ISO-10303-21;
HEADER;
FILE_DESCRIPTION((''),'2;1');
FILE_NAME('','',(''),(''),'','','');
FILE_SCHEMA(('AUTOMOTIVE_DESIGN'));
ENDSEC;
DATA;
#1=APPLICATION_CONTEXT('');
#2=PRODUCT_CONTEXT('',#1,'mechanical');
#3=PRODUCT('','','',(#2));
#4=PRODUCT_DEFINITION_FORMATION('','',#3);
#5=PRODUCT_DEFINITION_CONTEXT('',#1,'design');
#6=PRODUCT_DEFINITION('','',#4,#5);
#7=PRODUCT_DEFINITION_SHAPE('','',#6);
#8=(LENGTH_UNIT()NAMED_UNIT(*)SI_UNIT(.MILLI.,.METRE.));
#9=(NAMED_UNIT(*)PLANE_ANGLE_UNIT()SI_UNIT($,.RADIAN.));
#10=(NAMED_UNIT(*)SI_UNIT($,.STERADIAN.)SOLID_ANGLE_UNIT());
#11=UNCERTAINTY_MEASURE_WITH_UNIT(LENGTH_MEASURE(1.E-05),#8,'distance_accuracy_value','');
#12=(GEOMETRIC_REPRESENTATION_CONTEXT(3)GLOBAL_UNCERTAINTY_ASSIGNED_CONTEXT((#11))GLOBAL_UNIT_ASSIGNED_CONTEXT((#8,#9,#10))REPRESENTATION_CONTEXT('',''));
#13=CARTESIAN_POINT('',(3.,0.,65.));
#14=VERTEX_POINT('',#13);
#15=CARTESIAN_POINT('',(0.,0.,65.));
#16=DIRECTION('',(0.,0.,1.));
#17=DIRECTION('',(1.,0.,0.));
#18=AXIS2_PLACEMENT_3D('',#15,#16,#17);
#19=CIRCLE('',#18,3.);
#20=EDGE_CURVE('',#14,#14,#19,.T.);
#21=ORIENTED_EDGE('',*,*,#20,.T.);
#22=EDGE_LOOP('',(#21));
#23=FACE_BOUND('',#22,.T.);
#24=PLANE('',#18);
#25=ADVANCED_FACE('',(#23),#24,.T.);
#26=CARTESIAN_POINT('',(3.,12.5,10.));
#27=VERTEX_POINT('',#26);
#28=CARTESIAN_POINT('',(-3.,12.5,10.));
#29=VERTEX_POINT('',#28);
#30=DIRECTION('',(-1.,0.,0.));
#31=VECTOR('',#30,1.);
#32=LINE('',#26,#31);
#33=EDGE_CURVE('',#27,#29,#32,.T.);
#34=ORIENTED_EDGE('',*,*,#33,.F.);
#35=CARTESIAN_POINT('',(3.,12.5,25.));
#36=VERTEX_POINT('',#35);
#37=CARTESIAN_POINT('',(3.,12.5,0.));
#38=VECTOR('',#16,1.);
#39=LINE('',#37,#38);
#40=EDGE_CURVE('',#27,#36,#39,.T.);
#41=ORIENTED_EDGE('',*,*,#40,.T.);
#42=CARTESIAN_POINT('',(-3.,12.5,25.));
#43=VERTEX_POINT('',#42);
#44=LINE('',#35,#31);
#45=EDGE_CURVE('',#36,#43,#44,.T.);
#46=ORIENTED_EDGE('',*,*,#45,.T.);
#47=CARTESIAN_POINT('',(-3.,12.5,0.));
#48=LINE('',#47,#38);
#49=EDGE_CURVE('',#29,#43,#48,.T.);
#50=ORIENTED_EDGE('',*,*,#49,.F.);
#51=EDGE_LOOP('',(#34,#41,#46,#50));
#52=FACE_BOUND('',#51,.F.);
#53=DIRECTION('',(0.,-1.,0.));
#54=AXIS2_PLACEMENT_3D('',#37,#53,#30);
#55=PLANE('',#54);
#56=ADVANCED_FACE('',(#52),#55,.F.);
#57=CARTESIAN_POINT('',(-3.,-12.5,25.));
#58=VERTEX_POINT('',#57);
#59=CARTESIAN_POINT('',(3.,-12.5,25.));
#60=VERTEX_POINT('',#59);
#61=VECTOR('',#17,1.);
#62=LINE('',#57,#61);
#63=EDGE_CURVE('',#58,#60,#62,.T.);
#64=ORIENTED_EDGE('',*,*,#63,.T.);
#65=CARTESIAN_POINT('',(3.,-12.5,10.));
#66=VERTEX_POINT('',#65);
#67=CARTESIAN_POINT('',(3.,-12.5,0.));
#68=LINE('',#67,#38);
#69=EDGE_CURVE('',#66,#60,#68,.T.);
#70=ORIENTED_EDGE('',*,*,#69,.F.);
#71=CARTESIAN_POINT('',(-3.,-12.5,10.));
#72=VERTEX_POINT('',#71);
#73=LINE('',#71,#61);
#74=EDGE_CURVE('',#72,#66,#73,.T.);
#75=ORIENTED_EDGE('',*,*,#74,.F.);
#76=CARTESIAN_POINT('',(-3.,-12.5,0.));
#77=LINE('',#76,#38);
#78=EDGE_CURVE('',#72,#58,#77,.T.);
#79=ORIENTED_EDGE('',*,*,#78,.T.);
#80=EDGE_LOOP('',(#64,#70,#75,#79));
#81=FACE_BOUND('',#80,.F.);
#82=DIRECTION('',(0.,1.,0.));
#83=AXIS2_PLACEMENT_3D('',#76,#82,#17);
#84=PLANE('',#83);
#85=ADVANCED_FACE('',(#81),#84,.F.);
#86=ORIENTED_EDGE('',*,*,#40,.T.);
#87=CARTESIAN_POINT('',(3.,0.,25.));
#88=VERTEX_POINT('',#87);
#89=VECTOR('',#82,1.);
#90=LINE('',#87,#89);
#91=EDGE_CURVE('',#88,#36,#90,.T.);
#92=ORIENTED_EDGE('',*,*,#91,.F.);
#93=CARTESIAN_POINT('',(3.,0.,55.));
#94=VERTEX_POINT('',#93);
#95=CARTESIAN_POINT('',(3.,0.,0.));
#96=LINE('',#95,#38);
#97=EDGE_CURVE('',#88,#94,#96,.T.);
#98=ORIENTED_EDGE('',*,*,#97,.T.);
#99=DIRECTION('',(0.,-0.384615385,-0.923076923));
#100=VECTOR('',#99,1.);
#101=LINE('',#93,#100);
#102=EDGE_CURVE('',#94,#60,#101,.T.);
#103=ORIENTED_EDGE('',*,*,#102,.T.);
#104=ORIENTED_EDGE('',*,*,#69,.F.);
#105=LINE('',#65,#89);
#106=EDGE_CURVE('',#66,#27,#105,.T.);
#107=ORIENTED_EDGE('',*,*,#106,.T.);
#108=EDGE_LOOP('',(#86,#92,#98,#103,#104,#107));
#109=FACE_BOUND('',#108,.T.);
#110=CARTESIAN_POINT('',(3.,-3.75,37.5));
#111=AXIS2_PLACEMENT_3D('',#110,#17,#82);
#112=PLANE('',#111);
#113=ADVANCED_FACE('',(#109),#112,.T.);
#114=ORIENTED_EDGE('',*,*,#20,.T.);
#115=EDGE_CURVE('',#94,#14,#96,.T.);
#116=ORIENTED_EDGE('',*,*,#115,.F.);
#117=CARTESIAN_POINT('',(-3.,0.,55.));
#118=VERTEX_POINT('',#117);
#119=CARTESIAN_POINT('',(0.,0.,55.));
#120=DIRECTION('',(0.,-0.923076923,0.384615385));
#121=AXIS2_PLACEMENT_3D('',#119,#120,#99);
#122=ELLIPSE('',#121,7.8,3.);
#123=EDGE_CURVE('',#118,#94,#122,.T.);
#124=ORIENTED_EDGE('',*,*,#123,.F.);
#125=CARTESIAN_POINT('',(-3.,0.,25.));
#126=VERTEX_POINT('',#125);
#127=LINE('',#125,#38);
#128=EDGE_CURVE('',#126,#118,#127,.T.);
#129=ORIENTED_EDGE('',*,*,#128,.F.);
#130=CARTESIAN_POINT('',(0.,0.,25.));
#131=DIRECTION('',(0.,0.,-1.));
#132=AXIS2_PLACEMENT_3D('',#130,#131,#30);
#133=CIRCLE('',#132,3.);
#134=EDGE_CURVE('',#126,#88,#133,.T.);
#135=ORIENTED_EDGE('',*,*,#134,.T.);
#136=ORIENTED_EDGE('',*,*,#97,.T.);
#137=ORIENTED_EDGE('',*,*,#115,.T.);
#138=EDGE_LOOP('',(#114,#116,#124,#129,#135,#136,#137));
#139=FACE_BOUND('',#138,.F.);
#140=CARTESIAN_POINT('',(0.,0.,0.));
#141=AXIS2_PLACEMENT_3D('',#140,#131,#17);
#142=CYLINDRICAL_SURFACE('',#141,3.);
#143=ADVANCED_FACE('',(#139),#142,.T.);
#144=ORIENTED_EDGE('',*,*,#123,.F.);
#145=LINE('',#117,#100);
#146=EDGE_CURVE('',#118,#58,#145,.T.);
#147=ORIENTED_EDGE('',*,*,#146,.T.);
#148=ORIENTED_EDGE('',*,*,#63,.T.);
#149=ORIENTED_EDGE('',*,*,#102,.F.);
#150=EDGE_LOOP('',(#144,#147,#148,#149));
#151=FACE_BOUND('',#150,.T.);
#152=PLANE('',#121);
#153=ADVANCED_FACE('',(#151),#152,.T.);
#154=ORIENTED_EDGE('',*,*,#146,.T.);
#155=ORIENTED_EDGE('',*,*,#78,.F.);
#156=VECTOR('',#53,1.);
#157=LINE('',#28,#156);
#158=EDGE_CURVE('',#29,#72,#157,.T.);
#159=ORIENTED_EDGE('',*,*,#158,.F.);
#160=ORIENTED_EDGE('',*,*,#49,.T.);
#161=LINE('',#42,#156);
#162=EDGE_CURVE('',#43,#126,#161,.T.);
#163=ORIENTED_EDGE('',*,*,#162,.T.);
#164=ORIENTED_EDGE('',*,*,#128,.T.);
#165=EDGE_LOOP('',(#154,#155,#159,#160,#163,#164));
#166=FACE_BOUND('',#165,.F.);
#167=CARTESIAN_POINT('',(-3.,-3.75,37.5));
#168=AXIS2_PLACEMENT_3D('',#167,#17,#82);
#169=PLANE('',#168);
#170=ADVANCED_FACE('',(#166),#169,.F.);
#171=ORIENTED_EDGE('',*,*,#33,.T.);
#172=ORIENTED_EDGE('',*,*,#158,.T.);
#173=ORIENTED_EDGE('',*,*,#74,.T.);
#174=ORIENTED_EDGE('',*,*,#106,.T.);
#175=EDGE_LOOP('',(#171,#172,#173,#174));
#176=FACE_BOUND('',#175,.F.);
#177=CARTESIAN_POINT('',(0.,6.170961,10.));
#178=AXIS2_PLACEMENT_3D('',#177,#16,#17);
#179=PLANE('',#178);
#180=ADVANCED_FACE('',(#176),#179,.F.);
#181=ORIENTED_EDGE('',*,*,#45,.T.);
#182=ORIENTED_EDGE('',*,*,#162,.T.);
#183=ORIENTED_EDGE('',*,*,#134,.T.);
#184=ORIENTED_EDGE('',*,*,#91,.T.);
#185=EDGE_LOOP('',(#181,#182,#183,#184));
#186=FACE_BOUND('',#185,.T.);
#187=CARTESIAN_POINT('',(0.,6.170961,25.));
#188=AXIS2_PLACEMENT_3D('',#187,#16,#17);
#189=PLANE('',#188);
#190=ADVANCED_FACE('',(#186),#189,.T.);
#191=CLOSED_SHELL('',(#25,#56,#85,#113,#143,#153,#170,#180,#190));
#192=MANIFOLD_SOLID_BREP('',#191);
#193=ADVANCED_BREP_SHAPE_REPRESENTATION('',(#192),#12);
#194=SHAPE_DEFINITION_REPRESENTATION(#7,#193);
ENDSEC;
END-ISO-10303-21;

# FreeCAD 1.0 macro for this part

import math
import FreeCAD as App
import Part
import Sketcher
from FreeCAD import Vector
Q = App.Units.Quantity


def add_polygon(sketch, points):
    """Adds a closed chain of lines whose ends are joined by coincident constraints."""
    first, n = sketch.GeometryCount, len(points)
    for a, b in zip(points, points[1:] + points[:1]):
        sketch.addGeometry(Part.LineSegment(App.Vector(*a, 0), App.Vector(*b, 0)), False)
    for i in range(n):
        sketch.addConstraint(Sketcher.Constraint("Coincident", first + i, 2, first + (i + 1) % n, 1))

doc = App.newDocument("Part")
body = doc.addObject("PartDesign::Body", "Body")

sketch1 = body.newObject("Sketcher::SketchObject", "Sketch")
sketch1.AttachmentSupport = (doc.getObject("XY_Plane"), [""])
sketch1.MapMode = "FlatFace"
sketch1.addGeometry(Part.ArcOfCircle(Part.Circle(Vector(0, 0, 0), Vector(0, 0, 1), 3), math.radians(0), math.radians(180)), False)
sketch1.addGeometry(Part.LineSegment(Vector(3, 0, 0), Vector(3, 12.5, 0)), False)
sketch1.addGeometry(Part.LineSegment(Vector(3, 12.5, 0), Vector(-3, 12.5, 0)), False)
sketch1.addGeometry(Part.LineSegment(Vector(-3, 12.5, 0), Vector(-3, 0, 0)), False)
sketch1.addConstraint(Sketcher.Constraint("Tangent", 0, 1, 1, 1))
sketch1.addConstraint(Sketcher.Constraint("Coincident", 1, 2, 2, 1))
sketch1.addConstraint(Sketcher.Constraint("Coincident", 2, 2, 3, 1))
sketch1.addConstraint(Sketcher.Constraint("Tangent", 3, 2, 0, 2))
sketch1.addConstraint(Sketcher.Constraint("Vertical", 1))
sketch1.addConstraint(Sketcher.Constraint("Horizontal", 2))
sketch1.addConstraint(Sketcher.Constraint("Vertical", 3))
sketch1.addConstraint(Sketcher.Constraint("Coincident", 0, 3, -1, 1))
sketch1.addConstraint(Sketcher.Constraint("Radius", 0, Q("3 mm")))
sketch1.addConstraint(Sketcher.Constraint("DistanceY", 1, 1, 1, 2, Q("12.5 mm")))
pad1 = body.newObject("PartDesign::Pad", "Pad")
pad1.Profile = sketch1
pad1.Length = 25
body2 = doc.addObject("PartDesign::Body", "Body001")

sketch2 = body2.newObject("Sketcher::SketchObject", "Sketch001")
sketch2.AttachmentSupport = (doc.getObject("XY_Plane001"), [""])
sketch2.MapMode = "FlatFace"
sketch2.addGeometry(Part.LineSegment(Vector(3, -12.5, 0), Vector(3, 0, 0)), False)
sketch2.addGeometry(Part.ArcOfCircle(Part.Circle(Vector(0, 0, 0), Vector(0, 0, 1), 3), math.radians(180), math.radians(360)), False)
sketch2.addGeometry(Part.LineSegment(Vector(-3, 0, 0), Vector(-3, -12.5, 0)), False)
sketch2.addGeometry(Part.LineSegment(Vector(-3, -12.5, 0), Vector(3, -12.5, 0)), False)
sketch2.addConstraint(Sketcher.Constraint("Tangent", 0, 2, 1, 2))
sketch2.addConstraint(Sketcher.Constraint("Tangent", 1, 1, 2, 1))
sketch2.addConstraint(Sketcher.Constraint("Coincident", 2, 2, 3, 1))
sketch2.addConstraint(Sketcher.Constraint("Coincident", 3, 2, 0, 1))
sketch2.addConstraint(Sketcher.Constraint("Vertical", 0))
sketch2.addConstraint(Sketcher.Constraint("Vertical", 2))
sketch2.addConstraint(Sketcher.Constraint("Horizontal", 3))
sketch2.addConstraint(Sketcher.Constraint("Coincident", 1, 3, -1, 1))
sketch2.addConstraint(Sketcher.Constraint("Radius", 1, Q("3 mm")))
sketch2.addConstraint(Sketcher.Constraint("DistanceY", 0, 1, 0, 2, Q("12.5 mm")))
pad2 = body2.newObject("PartDesign::Pad", "Pad001")
pad2.Profile = sketch2
pad2.Length = 25
body.AllowCompound = True
doc.recompute()

boolean = body.newObject("PartDesign::Boolean", "Boolean")
boolean.Type = "Fuse"
boolean.addObjects([body2])

sketch3 = body.newObject("Sketcher::SketchObject", "Sketch002")
sketch3.AttachmentSupport = (doc.getObject("XY_Plane"), [""])
sketch3.MapMode = "FlatFace"
sketch3.addGeometry(Part.Circle(Vector(0, 0, 0), Vector(0, 0, 1), 3), False)
sketch3.addConstraint(Sketcher.Constraint("Coincident", 0, 3, -1, 1))
sketch3.addConstraint(Sketcher.Constraint("Diameter", 0, Q("6 mm")))
pad3 = body.newObject("PartDesign::Pad", "Pad002")
pad3.Profile = sketch3
pad3.Length = 65

sketch4 = body.newObject("Sketcher::SketchObject", "Sketch003")
sketch4.AttachmentSupport = (doc.getObject("YZ_Plane"), [""])
sketch4.MapMode = "FlatFace"
add_polygon(sketch4, [(-12, 25), (0, 25), (0, 55)])
sketch4.addConstraint(Sketcher.Constraint("Horizontal", 0))
sketch4.addConstraint(Sketcher.Constraint("Vertical", 1))
sketch4.addConstraint(Sketcher.Constraint("PointOnObject", 0, 2, -2))
sketch4.addConstraint(Sketcher.Constraint("DistanceY", 1, 1, 1, 2, Q("30 mm")))
sketch4.addConstraint(Sketcher.Constraint("DistanceX", 0, 1, 0, 2, Q("12.5 mm")))
sketch4.addConstraint(Sketcher.Constraint("DistanceY", -1, 1, 0, 2, Q("25 mm")))
pad4 = body.newObject("PartDesign::Pad", "Pad003")
pad4.Profile = sketch4
pad4.Length = 6
pad4.Midplane = True

sketch5 = body.newObject("Sketcher::SketchObject", "Sketch004")
sketch5.AttachmentSupport = (doc.getObject("XY_Plane"), [""])
sketch5.MapMode = "FlatFace"
add_polygon(sketch5, [(3, 12), (-3, 12), (-3, -12), (3, -12)])
sketch5.addConstraint(Sketcher.Constraint("Horizontal", 0))
sketch5.addConstraint(Sketcher.Constraint("Vertical", 1))
sketch5.addConstraint(Sketcher.Constraint("Horizontal", 2))
sketch5.addConstraint(Sketcher.Constraint("Vertical", 3))
sketch5.addConstraint(Sketcher.Constraint("Symmetric", 0, 2, 2, 2, -1, 1))
sketch5.addConstraint(Sketcher.Constraint("DistanceX", 0, 2, 0, 1, Q("6 mm")))
sketch5.addConstraint(Sketcher.Constraint("DistanceY", 1, 2, 1, 1, Q("25 mm")))
pocket1 = body.newObject("PartDesign::Pocket", "Pocket")
pocket1.Profile = sketch5
pocket1.Length = 10
pocket1.Reversed = True

doc.recompute()
